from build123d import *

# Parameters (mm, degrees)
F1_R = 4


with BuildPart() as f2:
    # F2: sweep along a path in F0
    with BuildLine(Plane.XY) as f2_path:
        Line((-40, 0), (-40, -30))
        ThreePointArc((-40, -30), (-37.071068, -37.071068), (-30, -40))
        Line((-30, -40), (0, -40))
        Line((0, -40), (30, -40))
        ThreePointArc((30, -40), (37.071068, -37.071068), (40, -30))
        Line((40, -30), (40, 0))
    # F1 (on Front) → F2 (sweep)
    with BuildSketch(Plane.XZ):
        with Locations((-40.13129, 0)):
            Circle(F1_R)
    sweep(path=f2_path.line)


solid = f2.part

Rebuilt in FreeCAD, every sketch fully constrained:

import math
import FreeCAD as App
import Part
import Sketcher
Q = App.Units.Quantity

doc = App.newDocument("Part")
body = doc.addObject("PartDesign::Body", "Body")

sketch1 = doc.addObject("Sketcher::SketchObject", "Sketch")
body.addObject(sketch1)
sketch1.AttachmentSupport = (doc.XZ_Plane, [""])
sketch1.MapMode = "FlatFace"
sketch1.addGeometry(Part.Circle(App.Vector(-40.1, 0, 0), App.Vector(0, 0, 1), 4), False)
sketch1.addConstraint([
    Sketcher.Constraint("PointOnObject", 0, 3, -1),
    Sketcher.Constraint("Diameter", 0, Q("8 mm")),
    Sketcher.Constraint("DistanceX", 0, 3, -1, 1, Q("40.13129 mm")),
])

sketch2 = doc.addObject("Sketcher::SketchObject", "Sketch001")
body.addObject(sketch2)
sketch2.AttachmentSupport = (doc.XY_Plane, [""])
sketch2.MapMode = "FlatFace"
sketch2.addGeometry([
    Part.LineSegment(App.Vector(-40, 0, 0), App.Vector(-40, -30, 0)),
    Part.ArcOfCircle(Part.Circle(App.Vector(-30, -30, 0), App.Vector(0, 0, 1), 10), math.radians(180), math.radians(270)),
    Part.LineSegment(App.Vector(-30, -40, 0), App.Vector(30, -40, 0)),
    Part.ArcOfCircle(Part.Circle(App.Vector(30, -30, 0), App.Vector(0, 0, 1), 10), math.radians(-90), math.radians(0)),
    Part.LineSegment(App.Vector(40, -30, 0), App.Vector(40, 0, 0)),
], False)
sketch2.addConstraint([
    Sketcher.Constraint("Tangent", 0, 2, 1, 1),
    Sketcher.Constraint("Tangent", 1, 2, 2, 1),
    Sketcher.Constraint("Tangent", 2, 2, 3, 1),
    Sketcher.Constraint("Tangent", 3, 2, 4, 1),
    Sketcher.Constraint("Vertical", 0),
    Sketcher.Constraint("Horizontal", 2),
    Sketcher.Constraint("Vertical", 4),
    Sketcher.Constraint("Equal", 1, 3),
    Sketcher.Constraint("Symmetric", 0, 1, 4, 2, -1, 1),
    Sketcher.Constraint("PointOnObject", 0, 1, -1),
    Sketcher.Constraint("Radius", 1, Q("9.999999 mm")),
    Sketcher.Constraint("DistanceX", 2, 1, 2, 2, Q("60 mm")),
    Sketcher.Constraint("DistanceY", 0, 2, 0, 1, Q("30 mm")),
])
doc.recompute()

additivepipe = doc.addObject("PartDesign::AdditivePipe", "AdditivePipe")
body.addObject(additivepipe)
additivepipe.Profile = sketch1
additivepipe.Spine = (sketch2, ["Edge1", "Edge2", "Edge3", "Edge4", "Edge5"])

doc.recompute()
